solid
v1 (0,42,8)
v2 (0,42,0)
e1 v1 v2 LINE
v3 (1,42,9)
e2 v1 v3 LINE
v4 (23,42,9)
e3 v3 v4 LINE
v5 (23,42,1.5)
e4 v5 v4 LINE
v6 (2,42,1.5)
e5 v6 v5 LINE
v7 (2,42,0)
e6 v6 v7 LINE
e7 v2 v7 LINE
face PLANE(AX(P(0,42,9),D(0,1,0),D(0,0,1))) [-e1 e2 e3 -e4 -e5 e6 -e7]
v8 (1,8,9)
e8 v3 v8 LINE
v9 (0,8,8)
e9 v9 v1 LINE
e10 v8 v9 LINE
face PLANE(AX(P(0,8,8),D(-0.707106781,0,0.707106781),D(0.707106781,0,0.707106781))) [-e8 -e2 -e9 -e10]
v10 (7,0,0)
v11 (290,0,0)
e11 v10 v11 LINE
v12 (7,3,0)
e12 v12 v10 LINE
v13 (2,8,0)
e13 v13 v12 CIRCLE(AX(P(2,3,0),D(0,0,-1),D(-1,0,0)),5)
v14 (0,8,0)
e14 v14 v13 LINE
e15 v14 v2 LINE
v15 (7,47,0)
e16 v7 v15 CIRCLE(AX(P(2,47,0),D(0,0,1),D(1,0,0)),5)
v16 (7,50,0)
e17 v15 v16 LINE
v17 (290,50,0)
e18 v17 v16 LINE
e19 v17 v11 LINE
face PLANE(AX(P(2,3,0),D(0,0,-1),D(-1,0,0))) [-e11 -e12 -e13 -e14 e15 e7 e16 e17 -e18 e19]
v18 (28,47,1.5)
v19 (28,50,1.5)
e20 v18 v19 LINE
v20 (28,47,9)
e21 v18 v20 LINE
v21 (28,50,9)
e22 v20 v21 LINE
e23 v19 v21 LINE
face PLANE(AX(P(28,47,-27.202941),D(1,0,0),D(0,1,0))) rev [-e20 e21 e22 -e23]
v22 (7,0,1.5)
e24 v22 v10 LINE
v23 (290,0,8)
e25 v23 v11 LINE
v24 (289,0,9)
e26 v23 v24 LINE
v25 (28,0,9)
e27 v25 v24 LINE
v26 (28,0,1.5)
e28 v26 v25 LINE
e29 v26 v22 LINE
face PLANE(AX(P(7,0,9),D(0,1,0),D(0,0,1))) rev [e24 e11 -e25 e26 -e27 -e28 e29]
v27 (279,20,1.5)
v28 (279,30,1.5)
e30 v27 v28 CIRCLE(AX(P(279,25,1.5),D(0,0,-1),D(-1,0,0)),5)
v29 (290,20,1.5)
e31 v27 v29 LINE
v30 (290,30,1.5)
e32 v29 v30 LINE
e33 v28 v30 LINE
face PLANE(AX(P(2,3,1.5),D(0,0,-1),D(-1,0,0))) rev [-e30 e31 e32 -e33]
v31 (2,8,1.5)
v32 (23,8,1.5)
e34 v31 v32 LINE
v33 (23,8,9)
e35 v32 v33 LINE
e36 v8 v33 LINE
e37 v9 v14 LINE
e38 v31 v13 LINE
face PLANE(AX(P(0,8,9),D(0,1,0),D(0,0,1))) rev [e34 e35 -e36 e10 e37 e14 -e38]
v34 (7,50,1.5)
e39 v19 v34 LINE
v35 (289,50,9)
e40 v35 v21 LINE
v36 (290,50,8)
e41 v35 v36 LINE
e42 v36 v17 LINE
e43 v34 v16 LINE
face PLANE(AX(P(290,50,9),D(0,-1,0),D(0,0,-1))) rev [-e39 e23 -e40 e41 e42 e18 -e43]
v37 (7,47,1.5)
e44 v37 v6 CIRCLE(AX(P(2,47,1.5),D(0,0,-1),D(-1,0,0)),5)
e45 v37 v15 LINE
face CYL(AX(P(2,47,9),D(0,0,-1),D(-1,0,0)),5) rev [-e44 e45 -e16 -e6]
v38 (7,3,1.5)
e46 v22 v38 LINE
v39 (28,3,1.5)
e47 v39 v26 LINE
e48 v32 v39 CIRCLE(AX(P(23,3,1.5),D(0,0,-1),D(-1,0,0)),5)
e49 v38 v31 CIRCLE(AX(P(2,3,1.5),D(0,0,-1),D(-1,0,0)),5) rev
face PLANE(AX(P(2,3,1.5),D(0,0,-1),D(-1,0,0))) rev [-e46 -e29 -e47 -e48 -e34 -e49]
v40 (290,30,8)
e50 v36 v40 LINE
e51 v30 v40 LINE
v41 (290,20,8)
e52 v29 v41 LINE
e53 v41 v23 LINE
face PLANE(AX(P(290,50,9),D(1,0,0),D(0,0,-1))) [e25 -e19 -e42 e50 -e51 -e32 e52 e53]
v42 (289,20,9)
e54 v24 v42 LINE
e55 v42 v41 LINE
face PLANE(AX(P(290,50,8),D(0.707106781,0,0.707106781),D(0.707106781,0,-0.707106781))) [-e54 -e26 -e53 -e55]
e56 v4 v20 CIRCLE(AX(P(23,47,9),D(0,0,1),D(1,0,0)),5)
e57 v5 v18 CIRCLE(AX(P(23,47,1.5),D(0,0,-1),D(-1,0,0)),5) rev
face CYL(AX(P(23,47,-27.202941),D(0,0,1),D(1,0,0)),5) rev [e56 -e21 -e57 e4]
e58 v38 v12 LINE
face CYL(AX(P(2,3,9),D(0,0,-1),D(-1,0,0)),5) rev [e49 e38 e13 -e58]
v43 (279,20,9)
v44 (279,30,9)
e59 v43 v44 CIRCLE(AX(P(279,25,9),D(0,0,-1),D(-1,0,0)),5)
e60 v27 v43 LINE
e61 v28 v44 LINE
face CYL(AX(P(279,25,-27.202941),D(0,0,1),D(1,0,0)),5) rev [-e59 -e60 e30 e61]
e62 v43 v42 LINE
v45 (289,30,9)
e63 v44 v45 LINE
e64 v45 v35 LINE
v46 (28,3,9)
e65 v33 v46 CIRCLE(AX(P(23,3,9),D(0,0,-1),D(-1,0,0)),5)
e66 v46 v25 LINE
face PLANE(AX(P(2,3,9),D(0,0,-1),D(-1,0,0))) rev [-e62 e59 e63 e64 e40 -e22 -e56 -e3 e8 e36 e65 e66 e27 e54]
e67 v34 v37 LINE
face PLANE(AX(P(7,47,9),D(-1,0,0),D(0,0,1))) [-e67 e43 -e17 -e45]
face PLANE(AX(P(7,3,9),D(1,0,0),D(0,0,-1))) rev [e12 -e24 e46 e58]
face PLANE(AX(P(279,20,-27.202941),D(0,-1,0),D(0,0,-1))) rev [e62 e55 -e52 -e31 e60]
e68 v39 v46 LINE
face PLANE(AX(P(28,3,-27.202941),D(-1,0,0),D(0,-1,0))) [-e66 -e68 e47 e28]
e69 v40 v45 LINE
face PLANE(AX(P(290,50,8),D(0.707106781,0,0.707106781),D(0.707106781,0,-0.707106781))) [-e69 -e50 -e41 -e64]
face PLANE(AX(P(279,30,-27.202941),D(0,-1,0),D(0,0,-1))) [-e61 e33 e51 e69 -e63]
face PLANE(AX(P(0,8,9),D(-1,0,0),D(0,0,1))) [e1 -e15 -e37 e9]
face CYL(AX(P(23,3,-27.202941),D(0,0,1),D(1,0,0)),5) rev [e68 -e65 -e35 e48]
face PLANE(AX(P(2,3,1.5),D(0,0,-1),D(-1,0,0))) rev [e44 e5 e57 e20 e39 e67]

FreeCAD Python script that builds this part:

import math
import FreeCAD as App
import Part
import Sketcher
Q = App.Units.Quantity


def edges_at(feature, points):
    """Names of the edges that pass closest to the given points."""
    edges = feature.Shape.Edges
    near = lambda p: min(range(len(edges)), key=lambda i: edges[i].distToShape(Part.Vertex(*p))[0])
    return sorted({f"Edge{near(p) + 1}" for p in points})

doc = App.newDocument("Part")
body = doc.addObject("PartDesign::Body", "Body")

# Sketch on XY plane
sketch1 = body.newObject("Sketcher::SketchObject", "Sketch")
sketch1.AttachmentSupport = (doc.getObject("XY_Plane"), [""])
sketch1.MapMode = "FlatFace"
sketch1.addGeometry([
    Part.LineSegment(App.Vector(7, 0, 0), App.Vector(290, 0, 0)),  # 0
    Part.LineSegment(App.Vector(290, 0, 0), App.Vector(290, 50, 0)),  # 1
    Part.LineSegment(App.Vector(290, 50, 0), App.Vector(7, 50, 0)),  # 2
    Part.LineSegment(App.Vector(7, 50, 0), App.Vector(7, 47, 0)),  # 3
    Part.ArcOfCircle(Part.Circle(App.Vector(2, 47, 0), App.Vector(0, 0, 1), 5), math.radians(-90), math.radians(0)),  # 4
    Part.LineSegment(App.Vector(2, 42, 0), App.Vector(0, 42, 0)),  # 5
    Part.LineSegment(App.Vector(0, 42, 0), App.Vector(0, 8, 0)),  # 6
    Part.LineSegment(App.Vector(0, 8, 0), App.Vector(2, 8, 0)),  # 7
    Part.ArcOfCircle(Part.Circle(App.Vector(2, 3, 0), App.Vector(0, 0, 1), 5), math.radians(0), math.radians(90)),  # 8
    Part.LineSegment(App.Vector(7, 3, 0), App.Vector(7, 0, 0)),  # 9
], False)
sketch1.addConstraint([
    Sketcher.Constraint("Coincident", 0, 2, 1, 1),
    Sketcher.Constraint("Coincident", 1, 2, 2, 1),
    Sketcher.Constraint("Coincident", 2, 2, 3, 1),
    Sketcher.Constraint("Tangent", 3, 2, 4, 2),
    Sketcher.Constraint("Tangent", 4, 1, 5, 1),
    Sketcher.Constraint("Coincident", 5, 2, 6, 1),
    Sketcher.Constraint("Coincident", 6, 2, 7, 1),
    Sketcher.Constraint("Tangent", 7, 2, 8, 2),
    Sketcher.Constraint("Tangent", 8, 1, 9, 1),
    Sketcher.Constraint("Coincident", 9, 2, 0, 1),
    Sketcher.Constraint("Horizontal", 0),
    Sketcher.Constraint("Vertical", 1),
    Sketcher.Constraint("Horizontal", 2),
    Sketcher.Constraint("Vertical", 3),
    Sketcher.Constraint("Horizontal", 5),
    Sketcher.Constraint("Vertical", 6),
    Sketcher.Constraint("Horizontal", 7),
    Sketcher.Constraint("Vertical", 9),
    Sketcher.Constraint("Equal", 4, 8),
    Sketcher.Constraint("PointOnObject", 0, 2, -1),
    Sketcher.Constraint("PointOnObject", 5, 2, -2),
    Sketcher.Constraint("Vertical", 4, 3, 8, 3),
    Sketcher.Constraint("Equal", 3, 9),
    Sketcher.Constraint("Radius", 4, Q("5 mm")),
    Sketcher.Constraint("DistanceX", 0, 1, 0, 2, Q("283 mm")),
    Sketcher.Constraint("DistanceX", 5, 2, 5, 1, Q("2 mm")),
    Sketcher.Constraint("DistanceY", 1, 1, 1, 2, Q("50 mm")),
    Sketcher.Constraint("DistanceY", 3, 2, 3, 1, Q("3 mm")),
])
pad1 = body.newObject("PartDesign::Pad", "Pad")
pad1.Profile = sketch1
pad1.Length = 9

# Sketch on XY plane
sketch2 = body.newObject("Sketcher::SketchObject", "Sketch001")
sketch2.AttachmentSupport = (doc.getObject("XY_Plane"), [""])
sketch2.MapMode = "FlatFace"
sketch2.AttachmentOffset = App.Placement(App.Vector(0, 0, 9), App.Rotation())
sketch2.addGeometry([
    Part.LineSegment(App.Vector(23, 8, 0), App.Vector(2, 8, 0)),  # 0
    Part.LineSegment(App.Vector(2, 8, 0), App.Vector(2, 0, 0)),  # 1
    Part.LineSegment(App.Vector(2, 0, 0), App.Vector(28, 0, 0)),  # 2
    Part.LineSegment(App.Vector(28, 0, 0), App.Vector(28, 3, 0)),  # 3
    Part.ArcOfCircle(Part.Circle(App.Vector(23, 3, 0), App.Vector(0, 0, 1), 5), math.radians(0), math.radians(90)),  # 4
    Part.LineSegment(App.Vector(290, 30, 0), App.Vector(279, 30, 0)),  # 5
    Part.ArcOfCircle(Part.Circle(App.Vector(279, 25, 0), App.Vector(0, 0, 1), 5), math.radians(90), math.radians(270)),  # 6
    Part.LineSegment(App.Vector(279, 20, 0), App.Vector(290, 20, 0)),  # 7
    Part.LineSegment(App.Vector(290, 20, 0), App.Vector(290, 30, 0)),  # 8
    Part.LineSegment(App.Vector(28, 47, 0), App.Vector(28, 50, 0)),  # 9
    Part.LineSegment(App.Vector(28, 50, 0), App.Vector(2, 50, 0)),  # 10
    Part.LineSegment(App.Vector(2, 50, 0), App.Vector(2, 42, 0)),  # 11
    Part.LineSegment(App.Vector(2, 42, 0), App.Vector(23, 42, 0)),  # 12
    Part.ArcOfCircle(Part.Circle(App.Vector(23, 47, 0), App.Vector(0, 0, 1), 5), math.radians(-90), math.radians(0)),  # 13
], False)
sketch2.addConstraint([
    Sketcher.Constraint("Coincident", 0, 2, 1, 1),
    Sketcher.Constraint("Coincident", 1, 2, 2, 1),
    Sketcher.Constraint("Coincident", 2, 2, 3, 1),
    Sketcher.Constraint("Tangent", 3, 2, 4, 1),
    Sketcher.Constraint("Tangent", 4, 2, 0, 1),
    Sketcher.Constraint("Tangent", 5, 2, 6, 1),
    Sketcher.Constraint("Tangent", 6, 2, 7, 1),
    Sketcher.Constraint("Coincident", 7, 2, 8, 1),
    Sketcher.Constraint("Coincident", 8, 2, 5, 1),
    Sketcher.Constraint("Coincident", 9, 2, 10, 1),
    Sketcher.Constraint("Coincident", 10, 2, 11, 1),
    Sketcher.Constraint("Coincident", 11, 2, 12, 1),
    Sketcher.Constraint("Tangent", 12, 2, 13, 1),
    Sketcher.Constraint("Tangent", 13, 2, 9, 1),
    Sketcher.Constraint("Horizontal", 0),
    Sketcher.Constraint("Vertical", 1),
    Sketcher.Constraint("Horizontal", 2),
    Sketcher.Constraint("Vertical", 3),
    Sketcher.Constraint("Horizontal", 5),
    Sketcher.Constraint("Horizontal", 7),
    Sketcher.Constraint("Vertical", 8),
    Sketcher.Constraint("Vertical", 9),
    Sketcher.Constraint("Horizontal", 10),
    Sketcher.Constraint("Vertical", 11),
    Sketcher.Constraint("Horizontal", 12),
    Sketcher.Constraint("Equal", 4, 6),
    Sketcher.Constraint("Equal", 6, 13),
    Sketcher.Constraint("PointOnObject", 1, 2, -1),
    Sketcher.Constraint("Vertical", 4, 3, 13, 3),
    Sketcher.Constraint("Vertical", 1, 2, 10, 2),
    Sketcher.Constraint("Equal", 3, 9),
    Sketcher.Constraint("Radius", 4, Q("5 mm")),
    Sketcher.Constraint("DistanceX", 0, 2, 0, 1, Q("21 mm")),
    Sketcher.Constraint("DistanceX", 5, 2, 5, 1, Q("11 mm")),
    Sketcher.Constraint("DistanceY", 1, 2, 1, 1, Q("8 mm")),
    Sketcher.Constraint("DistanceX", -1, 1, 4, 3, Q("23 mm")),
    Sketcher.Constraint("DistanceX", -1, 1, 6, 3, Q("279 mm")),
    Sketcher.Constraint("DistanceY", -1, 1, 6, 3, Q("25 mm")),
    Sketcher.Constraint("DistanceY", -1, 1, 13, 3, Q("47 mm")),
])
pocket1 = body.newObject("PartDesign::Pocket", "Pocket")
pocket1.Profile = sketch2
pocket1.Length = 7.5
doc.recompute()

chamfer = body.newObject("PartDesign::Chamfer", "Chamfer")
chamfer.Base = (pocket1, edges_at(pocket1, [(0, 25, 9), (290, 40, 9), (290, 10, 9)]))
chamfer.Size = 1

doc.recompute()
